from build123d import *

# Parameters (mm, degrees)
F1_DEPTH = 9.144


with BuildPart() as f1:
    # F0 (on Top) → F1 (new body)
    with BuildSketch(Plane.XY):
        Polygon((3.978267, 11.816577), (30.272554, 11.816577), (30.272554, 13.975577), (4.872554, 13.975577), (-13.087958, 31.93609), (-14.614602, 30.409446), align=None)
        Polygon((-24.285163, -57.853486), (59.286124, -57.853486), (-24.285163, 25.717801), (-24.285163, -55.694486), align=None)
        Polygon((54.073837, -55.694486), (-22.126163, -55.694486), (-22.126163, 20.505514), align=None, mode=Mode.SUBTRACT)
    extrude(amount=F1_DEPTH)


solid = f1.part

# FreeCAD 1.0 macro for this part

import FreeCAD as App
import Part
import Sketcher
Q = App.Units.Quantity


def add_polygon(sketch, points):
    """Adds a closed chain of lines whose ends are joined by coincident constraints."""
    first, n = sketch.GeometryCount, len(points)
    for a, b in zip(points, points[1:] + points[:1]):
        sketch.addGeometry(Part.LineSegment(App.Vector(*a, 0), App.Vector(*b, 0)), False)
    for i in range(n):
        sketch.addConstraint(Sketcher.Constraint("Coincident", first + i, 2, first + (i + 1) % n, 1))

doc = App.newDocument("Part")
body = doc.addObject("PartDesign::Body", "Body")
body.AllowCompound = True

# Sketch on XY plane
sketch1 = body.newObject("Sketcher::SketchObject", "Sketch")
sketch1.AttachmentSupport = (doc.getObject("XY_Plane"), [""])
sketch1.MapMode = "FlatFace"
add_polygon(sketch1, [(4, 11.8), (30.3, 11.8), (30.3, 14), (4.9, 14), (-13.1, 31.9), (-14.6, 30.4)])  # lines 0-5
add_polygon(sketch1, [(-24.3, -57.9), (59.3, -57.9), (-24.3, 25.7)])  # lines 6-8
add_polygon(sketch1, [(-22.1, 20.5), (54.1, -55.7), (-22.1, -55.7)])  # lines 9-11
sketch1.addConstraint([
    Sketcher.Constraint("Horizontal", 0),
    Sketcher.Constraint("Vertical", 1),
    Sketcher.Constraint("Horizontal", 2),
    Sketcher.Constraint("Horizontal", 6),
    Sketcher.Constraint("Vertical", 8),
    Sketcher.Constraint("Horizontal", 10),
    Sketcher.Constraint("Vertical", 11),
    Sketcher.Constraint("Perpendicular", 3, 4),
    Sketcher.Constraint("Perpendicular", 4, 5),
    Sketcher.Constraint("Parallel", 5, 7),
    Sketcher.Constraint("Parallel", 7, 9),
    Sketcher.Constraint("Equal", 6, 8),
    Sketcher.Constraint("DistanceX", 2, 2, 2, 1, Q("1 in")),
    Sketcher.Constraint("DistanceX", 10, 2, 10, 1, Q("3 in")),
    Sketcher.Constraint("Distance", 3, Q("1 in")),
    Sketcher.Constraint("DistanceY", 1, 1, 1, 2, Q("0.085 in")),
    Sketcher.Constraint("Distance", 4, Q("0.085 in")),
    Sketcher.Constraint("DistanceY", 6, 2, 9, 2, Q("0.085 in")),
    Sketcher.Constraint("DistanceX", 8, 2, 9, 2, Q("3.085 in")),
    Sketcher.Constraint("DistanceY", -1, 1, 7, 2, 25.717801),
    Sketcher.Constraint("DistanceX", 6, 1, 6, 2, 83.571287),
    Sketcher.Constraint("DistanceY", -1, 1, 3, 2, 31.93609),
    Sketcher.Constraint("DistanceX", 0, 2, 6, 2, 29.01357),
    Sketcher.Constraint("DistanceX", -1, 1, 0, 2, 30.272554),
])
pad1 = body.newObject("PartDesign::Pad", "Pad")
pad1.Profile = sketch1
pad1.Length = Q("0.36 in")

doc.recompute()
